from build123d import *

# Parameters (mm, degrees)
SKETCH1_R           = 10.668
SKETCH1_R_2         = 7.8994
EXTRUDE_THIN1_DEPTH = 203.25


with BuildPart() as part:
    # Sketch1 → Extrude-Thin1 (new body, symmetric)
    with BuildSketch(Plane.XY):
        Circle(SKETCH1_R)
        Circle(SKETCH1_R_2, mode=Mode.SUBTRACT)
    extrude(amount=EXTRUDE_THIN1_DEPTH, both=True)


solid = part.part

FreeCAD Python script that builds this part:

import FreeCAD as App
import Part
import Sketcher

V = App.Vector
Q = App.Units.Quantity

doc = App.newDocument("Part")
body = doc.addObject("PartDesign::Body", "Body")

sketch1 = doc.addObject("Sketcher::SketchObject", "Sketch")
body.addObject(sketch1)
sketch1.AttachmentSupport = (doc.XY_Plane, [""])
sketch1.MapMode = "FlatFace"
sketch1.addGeometry(Part.Circle(V(0, 0, 0), V(0, 0, 1), 10.668), False)
sketch1.addGeometry(Part.Circle(V(0, 0, 0), V(0, 0, 1), 7.8994), False)
sketch1.addConstraint(Sketcher.Constraint("Coincident", 0, 3, -1, 1))
sketch1.addConstraint(Sketcher.Constraint("Coincident", 1, 3, -1, 1))
sketch1.addConstraint(Sketcher.Constraint("Diameter", 0, Q("0.84 in")))
sketch1.addConstraint(Sketcher.Constraint("Diameter", 1, Q("0.622 in")))
pad1 = doc.addObject("PartDesign::Pad", "Pad")
body.addObject(pad1)
pad1.Profile = sketch1
pad1.Length = 406.5
pad1.Midplane = True

doc.recompute()
